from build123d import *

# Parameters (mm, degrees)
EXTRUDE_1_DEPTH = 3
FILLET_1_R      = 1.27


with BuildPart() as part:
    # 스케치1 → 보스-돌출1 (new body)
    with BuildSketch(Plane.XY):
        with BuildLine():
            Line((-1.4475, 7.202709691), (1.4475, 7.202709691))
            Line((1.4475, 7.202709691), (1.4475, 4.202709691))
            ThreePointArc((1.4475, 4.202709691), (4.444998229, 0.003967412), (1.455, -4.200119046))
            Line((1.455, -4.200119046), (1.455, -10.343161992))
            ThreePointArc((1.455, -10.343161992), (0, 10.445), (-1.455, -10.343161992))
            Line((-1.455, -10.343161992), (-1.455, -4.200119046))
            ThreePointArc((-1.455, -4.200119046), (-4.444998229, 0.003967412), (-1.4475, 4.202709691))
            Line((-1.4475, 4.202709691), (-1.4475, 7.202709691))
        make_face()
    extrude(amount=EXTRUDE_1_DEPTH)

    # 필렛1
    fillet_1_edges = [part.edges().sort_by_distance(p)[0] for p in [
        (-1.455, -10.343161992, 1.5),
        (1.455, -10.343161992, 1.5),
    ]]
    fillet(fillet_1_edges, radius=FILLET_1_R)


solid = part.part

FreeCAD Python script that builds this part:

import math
import FreeCAD as App
import Part
import Sketcher

V = App.Vector
Q = App.Units.Quantity


def edges_at(feature, points):
    """Names of the edges that pass closest to the given points."""
    edges = feature.Shape.Edges
    near = lambda p: min(range(len(edges)), key=lambda i: edges[i].distToShape(Part.Vertex(*p))[0])
    return sorted({f"Edge{near(p) + 1}" for p in points})

doc = App.newDocument("Part")
params = doc.addObject("Spreadsheet::Sheet", "Params")
for row, (alias, value) in enumerate([
    ("sketch1_radius", "0.175 in"),
    ("pad1_length", "3 mm"),
    ("fillet_radius", "0.05 in"),
], start=1):
    params.set(f"A{row}", alias)
    params.set(f"B{row}", "=" + value)
    params.setAlias(f"B{row}", alias)

body = doc.addObject("PartDesign::Body", "Body")

sketch1 = body.newObject("Sketcher::SketchObject", "Sketch")
sketch1.AttachmentSupport = (doc.getObject("XY_Plane"), [""])
sketch1.MapMode = "FlatFace"
sketch1.addGeometry([
    Part.LineSegment(V(-1.4475, 7.20271, 0), V(1.4475, 7.20271, 0)),
    Part.LineSegment(V(1.4475, 7.20271, 0), V(1.4475, 4.20271, 0)),
    Part.ArcOfCircle(Part.Circle(V(0, 0, 0), V(0, 0, 1), 4.445), math.radians(-70.892955), math.radians(70.995235)),
    Part.LineSegment(V(1.455, -4.200119, 0), V(1.455, -10.343162, 0)),
    Part.ArcOfCircle(Part.Circle(V(0, 0, 0), V(0, 0, 1), 10.445), math.radians(-81.992594), math.radians(261.992594)),
    Part.LineSegment(V(-1.455, -10.343162, 0), V(-1.455, -4.200119, 0)),
    Part.ArcOfCircle(Part.Circle(V(0, 0, 0), V(0, 0, 1), 4.445), math.radians(109.004765), math.radians(250.892955)),
    Part.LineSegment(V(-1.4475, 4.20271, 0), V(-1.4475, 7.20271, 0)),
], False)
sketch1.addConstraint([
    Sketcher.Constraint("Coincident", 0, 2, 1, 1),
    Sketcher.Constraint("Coincident", 1, 2, 2, 2),
    Sketcher.Constraint("Coincident", 2, 1, 3, 1),
    Sketcher.Constraint("Coincident", 3, 2, 4, 1),
    Sketcher.Constraint("Coincident", 4, 2, 5, 1),
    Sketcher.Constraint("Coincident", 5, 2, 6, 2),
    Sketcher.Constraint("Coincident", 6, 1, 7, 1),
    Sketcher.Constraint("Coincident", 7, 2, 0, 1),
    Sketcher.Constraint("Horizontal", 0),
    Sketcher.Constraint("Vertical", 1),
    Sketcher.Constraint("Vertical", 3),
    Sketcher.Constraint("Vertical", 5),
    Sketcher.Constraint("Vertical", 7),
    Sketcher.Constraint("Coincident", 2, 3, -1, 1),
    Sketcher.Constraint("Coincident", 4, 3, -1, 1),
    Sketcher.Constraint("Coincident", 6, 3, -1, 1),
    Sketcher.Constraint("Equal", 2, 6),
    Sketcher.Constraint("Horizontal", 3, 2, 4, 2),
    Sketcher.Constraint("Horizontal", 1, 2, 6, 1),
    Sketcher.Constraint("Radius", 2, Q("0.175 in")),
    Sketcher.Constraint("Radius", 4, Q("10.445 mm")),
    Sketcher.Constraint("DistanceX", 0, 1, 0, 2, Q("2.895 mm")),
    Sketcher.Constraint("DistanceY", 1, 2, 1, 1, Q("3 mm")),
    Sketcher.Constraint("DistanceX", -1, 1, 2, 1, Q("1.455 mm")),
])
sketch1.setExpression("Constraints[19]", "Params.sketch1_radius")
pad1 = body.newObject("PartDesign::Pad", "Pad")
pad1.Profile = sketch1
pad1.setExpression("Length", "Params.pad1_length")
doc.recompute()

fillet = body.newObject("PartDesign::Fillet", "Fillet")
fillet.Base = (pad1, edges_at(pad1, [(-1.455, -10.343, 1.5), (1.455, -10.343, 1.5)]))
fillet.setExpression("Radius", "Params.fillet_radius")

doc.recompute()
